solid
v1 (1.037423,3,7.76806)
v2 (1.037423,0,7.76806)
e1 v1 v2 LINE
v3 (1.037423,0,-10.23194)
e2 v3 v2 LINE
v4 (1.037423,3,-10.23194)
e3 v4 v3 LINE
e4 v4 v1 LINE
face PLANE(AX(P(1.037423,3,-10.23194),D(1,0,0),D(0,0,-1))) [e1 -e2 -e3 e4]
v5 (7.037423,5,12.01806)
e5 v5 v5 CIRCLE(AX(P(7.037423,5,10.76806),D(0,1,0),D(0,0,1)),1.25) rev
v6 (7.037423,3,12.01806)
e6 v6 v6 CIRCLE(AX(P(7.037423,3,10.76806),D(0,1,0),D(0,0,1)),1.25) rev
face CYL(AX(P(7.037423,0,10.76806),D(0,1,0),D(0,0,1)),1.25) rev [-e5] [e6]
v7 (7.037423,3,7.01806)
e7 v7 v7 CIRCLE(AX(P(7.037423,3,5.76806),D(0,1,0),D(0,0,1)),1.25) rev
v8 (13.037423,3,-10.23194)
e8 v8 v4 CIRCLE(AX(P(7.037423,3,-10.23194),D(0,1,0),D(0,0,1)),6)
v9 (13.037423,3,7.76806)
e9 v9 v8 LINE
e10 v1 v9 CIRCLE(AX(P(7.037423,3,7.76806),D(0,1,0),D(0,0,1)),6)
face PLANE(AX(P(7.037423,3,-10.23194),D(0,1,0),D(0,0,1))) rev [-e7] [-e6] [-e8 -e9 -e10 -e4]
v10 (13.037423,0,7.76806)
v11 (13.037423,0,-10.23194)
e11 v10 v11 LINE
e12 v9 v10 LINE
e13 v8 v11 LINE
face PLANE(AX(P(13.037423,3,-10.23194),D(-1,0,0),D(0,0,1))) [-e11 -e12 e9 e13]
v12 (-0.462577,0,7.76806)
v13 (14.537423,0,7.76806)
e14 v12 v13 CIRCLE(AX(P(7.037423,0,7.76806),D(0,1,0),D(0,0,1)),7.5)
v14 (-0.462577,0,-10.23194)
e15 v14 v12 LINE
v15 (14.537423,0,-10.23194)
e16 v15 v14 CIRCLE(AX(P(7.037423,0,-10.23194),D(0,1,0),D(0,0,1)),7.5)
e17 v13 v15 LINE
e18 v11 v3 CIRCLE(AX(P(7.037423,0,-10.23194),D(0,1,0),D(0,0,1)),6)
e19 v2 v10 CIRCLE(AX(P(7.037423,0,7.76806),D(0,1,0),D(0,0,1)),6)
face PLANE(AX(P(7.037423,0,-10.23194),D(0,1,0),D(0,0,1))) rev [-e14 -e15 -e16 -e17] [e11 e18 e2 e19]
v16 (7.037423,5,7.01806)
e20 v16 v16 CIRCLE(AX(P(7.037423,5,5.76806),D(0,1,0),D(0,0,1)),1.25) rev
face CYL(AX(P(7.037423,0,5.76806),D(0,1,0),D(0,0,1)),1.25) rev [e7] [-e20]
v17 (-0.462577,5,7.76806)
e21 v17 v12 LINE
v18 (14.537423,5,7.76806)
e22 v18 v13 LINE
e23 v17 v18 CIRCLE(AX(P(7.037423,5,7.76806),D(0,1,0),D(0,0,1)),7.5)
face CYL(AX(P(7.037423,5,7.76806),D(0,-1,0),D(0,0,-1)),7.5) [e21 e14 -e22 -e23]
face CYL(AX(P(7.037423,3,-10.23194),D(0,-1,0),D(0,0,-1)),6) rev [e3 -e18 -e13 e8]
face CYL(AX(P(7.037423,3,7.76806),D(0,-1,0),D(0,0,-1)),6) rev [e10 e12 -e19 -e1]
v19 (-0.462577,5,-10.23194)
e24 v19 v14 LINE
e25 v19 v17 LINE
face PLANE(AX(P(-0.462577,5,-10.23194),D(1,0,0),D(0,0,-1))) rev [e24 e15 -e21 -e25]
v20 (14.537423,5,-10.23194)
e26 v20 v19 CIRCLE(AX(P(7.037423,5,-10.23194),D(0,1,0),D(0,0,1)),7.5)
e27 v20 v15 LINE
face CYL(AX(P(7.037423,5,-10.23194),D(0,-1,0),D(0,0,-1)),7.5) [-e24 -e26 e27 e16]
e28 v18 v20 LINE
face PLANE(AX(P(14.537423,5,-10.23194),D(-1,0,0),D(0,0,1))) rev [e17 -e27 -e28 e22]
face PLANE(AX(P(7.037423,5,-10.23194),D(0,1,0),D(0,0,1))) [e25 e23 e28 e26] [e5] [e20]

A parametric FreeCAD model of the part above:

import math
import FreeCAD as App
import Part
import Sketcher
from FreeCAD import Vector

doc = App.newDocument("Part")
body = doc.addObject("PartDesign::Body", "Body")

# Sketch on XZ plane
sketch1 = body.newObject("Sketcher::SketchObject", "Sketch")
sketch1.AttachmentSupport = (doc.getObject("XZ_Plane"), [""])
sketch1.MapMode = "FlatFace"
sketch1.addGeometry([
    Part.LineSegment(Vector(0, -10, 0), Vector(0, 8, 0)),
    Part.ArcOfCircle(Part.Circle(Vector(7, 8, 0), Vector(0, 0, 1), 8), math.radians(0), math.radians(180)),
    Part.LineSegment(Vector(15, 8, 0), Vector(15, -10, 0)),
    Part.ArcOfCircle(Part.Circle(Vector(7, -10, 0), Vector(0, 0, 1), 8), math.radians(180), math.radians(360)),
], False)
sketch1.addConstraint([
    Sketcher.Constraint("Tangent", 0, 2, 1, 2),
    Sketcher.Constraint("Tangent", 1, 1, 2, 1),
    Sketcher.Constraint("Tangent", 2, 2, 3, 2),
    Sketcher.Constraint("Tangent", 3, 1, 0, 1),
    Sketcher.Constraint("Vertical", 0),
    Sketcher.Constraint("Vertical", 2),
    Sketcher.Constraint("Radius", 1, 7.5),
    Sketcher.Constraint("DistanceY", 0, 1, 0, 2, 18.0),
    Sketcher.Constraint("DistanceY", -1, 1, 1, 3, 7.76806),
    Sketcher.Constraint("DistanceX", -1, 1, 1, 3, 7.037423),
])
pad1 = body.newObject("PartDesign::Pad", "Pad")
pad1.Profile = sketch1
pad1.Length = 5
pad1.Reversed = True

# Sketch on XZ plane
sketch2 = body.newObject("Sketcher::SketchObject", "Sketch001")
sketch2.AttachmentSupport = (doc.getObject("XZ_Plane"), [""])
sketch2.MapMode = "FlatFace"
sketch2.addGeometry([
    Part.LineSegment(Vector(1, -10, 0), Vector(1, 8, 0)),
    Part.ArcOfCircle(Part.Circle(Vector(7, 8, 0), Vector(0, 0, 1), 6), math.radians(0), math.radians(180)),
    Part.LineSegment(Vector(13, 8, 0), Vector(13, -10, 0)),
    Part.ArcOfCircle(Part.Circle(Vector(7, -10, 0), Vector(0, 0, 1), 6), math.radians(180), math.radians(360)),
], False)
sketch2.addConstraint([
    Sketcher.Constraint("Tangent", 0, 2, 1, 2),
    Sketcher.Constraint("Tangent", 1, 1, 2, 1),
    Sketcher.Constraint("Tangent", 2, 2, 3, 2),
    Sketcher.Constraint("Tangent", 3, 1, 0, 1),
    Sketcher.Constraint("Vertical", 0),
    Sketcher.Constraint("Vertical", 2),
    Sketcher.Constraint("Radius", 1, 6.0),
    Sketcher.Constraint("DistanceY", 0, 1, 0, 2, 18.0),
    Sketcher.Constraint("DistanceY", -1, 1, 1, 3, 7.76806),
    Sketcher.Constraint("DistanceX", -1, 1, 1, 3, 7.037423),
])
pocket1 = body.newObject("PartDesign::Pocket", "Pocket")
pocket1.Profile = sketch2
pocket1.Length = 3

# Sketch on XZ plane
sketch3 = body.newObject("Sketcher::SketchObject", "Sketch002")
sketch3.AttachmentSupport = (doc.getObject("XZ_Plane"), [""])
sketch3.MapMode = "FlatFace"
sketch3.AttachmentOffset = App.Placement(Vector(0, 0, -3), App.Rotation())
sketch3.addGeometry([
    Part.Circle(Vector(7, 10.8, 0), Vector(0, 0, 1), 1.2),
    Part.Circle(Vector(7, 5.8, 0), Vector(0, 0, 1), 1.2),
], False)
sketch3.addConstraint([
    Sketcher.Constraint("Equal", 0, 1),
    Sketcher.Constraint("Vertical", 0, 3, 1, 3),
    Sketcher.Constraint("Diameter", 0, 2.5),
    Sketcher.Constraint("DistanceY", 1, 3, 0, 3, 5.0),
    Sketcher.Constraint("DistanceY", -1, 1, 0, 3, 10.76806),
    Sketcher.Constraint("DistanceX", -1, 1, 0, 3, 7.037423),
])
pocket2 = body.newObject("PartDesign::Pocket", "Pocket001")
pocket2.Profile = sketch3
pocket2.Type = "ThroughAll"
pocket2.Midplane = True

doc.recompute()
